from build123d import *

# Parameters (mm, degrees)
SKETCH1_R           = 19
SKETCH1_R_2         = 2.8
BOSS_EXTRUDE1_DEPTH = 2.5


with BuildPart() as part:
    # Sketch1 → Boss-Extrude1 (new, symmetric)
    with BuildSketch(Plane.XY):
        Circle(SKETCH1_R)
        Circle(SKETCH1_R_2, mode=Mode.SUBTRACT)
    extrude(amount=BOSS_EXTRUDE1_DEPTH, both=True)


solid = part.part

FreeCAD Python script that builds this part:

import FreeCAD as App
import Part
import Sketcher
from FreeCAD import Vector

doc = App.newDocument("Part")
body = doc.addObject("PartDesign::Body", "Body")

# Sketch on XY plane
sketch1 = doc.addObject("Sketcher::SketchObject", "Sketch")
body.addObject(sketch1)
sketch1.AttachmentSupport = (doc.XY_Plane, [""])
sketch1.MapMode = "FlatFace"
sketch1.addGeometry([
    Part.Circle(Vector(0, 0, 0), Vector(0, 0, 1), 19),
    Part.Circle(Vector(0, 0, 0), Vector(0, 0, 1), 2.8),
], False)
sketch1.addConstraint([
    Sketcher.Constraint("Coincident", 0, 3, -1, 1),
    Sketcher.Constraint("Coincident", 1, 3, -1, 1),
    Sketcher.Constraint("Diameter", 0, 38.0),
    Sketcher.Constraint("Diameter", 1, 5.6),
])
pad1 = doc.addObject("PartDesign::Pad", "Pad")
body.addObject(pad1)
pad1.Profile = sketch1
pad1.Length = 5
pad1.Midplane = True

doc.recompute()
